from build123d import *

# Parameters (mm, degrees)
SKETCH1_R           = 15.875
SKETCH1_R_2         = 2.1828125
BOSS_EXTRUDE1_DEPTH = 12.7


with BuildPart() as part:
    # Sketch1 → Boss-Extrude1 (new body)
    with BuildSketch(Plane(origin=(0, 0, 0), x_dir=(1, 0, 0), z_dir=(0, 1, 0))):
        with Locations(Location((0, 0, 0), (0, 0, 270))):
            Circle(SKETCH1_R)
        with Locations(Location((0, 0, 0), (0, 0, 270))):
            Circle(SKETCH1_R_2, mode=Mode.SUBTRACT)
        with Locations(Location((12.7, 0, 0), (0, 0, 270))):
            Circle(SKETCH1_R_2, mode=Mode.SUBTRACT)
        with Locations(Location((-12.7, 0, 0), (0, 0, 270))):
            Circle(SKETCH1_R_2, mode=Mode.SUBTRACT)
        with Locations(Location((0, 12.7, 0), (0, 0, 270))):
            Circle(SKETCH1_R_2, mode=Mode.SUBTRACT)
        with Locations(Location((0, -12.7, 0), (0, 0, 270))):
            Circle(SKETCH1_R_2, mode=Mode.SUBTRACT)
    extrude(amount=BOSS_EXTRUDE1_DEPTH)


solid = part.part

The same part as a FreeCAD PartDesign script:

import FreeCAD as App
import Part
import Sketcher

V = App.Vector
Q = App.Units.Quantity

doc = App.newDocument("Part")
body = doc.addObject("PartDesign::Body", "Body")

# Sketch on XZ plane
sketch1 = body.newObject("Sketcher::SketchObject", "Sketch")
sketch1.AttachmentSupport = (doc.getObject("XZ_Plane"), [""])
sketch1.MapMode = "FlatFace"
sketch1.addGeometry(Part.Circle(V(0, 0, 0), V(0, 0, 1), 15.9), False)
sketch1.addGeometry(Part.Circle(V(0, -12.7, 0), V(0, 0, 1), 2.2), False)
sketch1.addGeometry(Part.Circle(V(-12.7, 0, 0), V(0, 0, 1), 2.2), False)
sketch1.addGeometry(Part.Circle(V(12.7, 0, 0), V(0, 0, 1), 2.2), False)
sketch1.addGeometry(Part.Circle(V(0, 0, 0), V(0, 0, 1), 2.2), False)
sketch1.addGeometry(Part.Circle(V(0, 12.7, 0), V(0, 0, 1), 2.2), False)
sketch1.addConstraint(Sketcher.Constraint("Coincident", 0, 3, -1, 1))
sketch1.addConstraint(Sketcher.Constraint("Coincident", 4, 3, -1, 1))
sketch1.addConstraint(Sketcher.Constraint("Equal", 1, 2))
sketch1.addConstraint(Sketcher.Constraint("Equal", 2, 3))
sketch1.addConstraint(Sketcher.Constraint("Equal", 3, 4))
sketch1.addConstraint(Sketcher.Constraint("Equal", 4, 5))
sketch1.addConstraint(Sketcher.Constraint("Symmetric", 2, 3, 3, 3, -1, 1))
sketch1.addConstraint(Sketcher.Constraint("Symmetric", 1, 3, 5, 3, -1, 1))
sketch1.addConstraint(Sketcher.Constraint("PointOnObject", 1, 3, -2))
sketch1.addConstraint(Sketcher.Constraint("PointOnObject", 2, 3, -1))
sketch1.addConstraint(Sketcher.Constraint("Diameter", 0, Q("1.25 in")))
sketch1.addConstraint(Sketcher.Constraint("Diameter", 1, Q("0.171875 in")))
sketch1.addConstraint(Sketcher.Constraint("DistanceX", 2, 3, 3, 3, Q("1 in")))
sketch1.addConstraint(Sketcher.Constraint("DistanceY", 1, 3, 5, 3, Q("1 in")))
pad1 = body.newObject("PartDesign::Pad", "Pad")
pad1.Profile = sketch1
pad1.Length = Q("0.5 in")
pad1.Reversed = True

doc.recompute()
